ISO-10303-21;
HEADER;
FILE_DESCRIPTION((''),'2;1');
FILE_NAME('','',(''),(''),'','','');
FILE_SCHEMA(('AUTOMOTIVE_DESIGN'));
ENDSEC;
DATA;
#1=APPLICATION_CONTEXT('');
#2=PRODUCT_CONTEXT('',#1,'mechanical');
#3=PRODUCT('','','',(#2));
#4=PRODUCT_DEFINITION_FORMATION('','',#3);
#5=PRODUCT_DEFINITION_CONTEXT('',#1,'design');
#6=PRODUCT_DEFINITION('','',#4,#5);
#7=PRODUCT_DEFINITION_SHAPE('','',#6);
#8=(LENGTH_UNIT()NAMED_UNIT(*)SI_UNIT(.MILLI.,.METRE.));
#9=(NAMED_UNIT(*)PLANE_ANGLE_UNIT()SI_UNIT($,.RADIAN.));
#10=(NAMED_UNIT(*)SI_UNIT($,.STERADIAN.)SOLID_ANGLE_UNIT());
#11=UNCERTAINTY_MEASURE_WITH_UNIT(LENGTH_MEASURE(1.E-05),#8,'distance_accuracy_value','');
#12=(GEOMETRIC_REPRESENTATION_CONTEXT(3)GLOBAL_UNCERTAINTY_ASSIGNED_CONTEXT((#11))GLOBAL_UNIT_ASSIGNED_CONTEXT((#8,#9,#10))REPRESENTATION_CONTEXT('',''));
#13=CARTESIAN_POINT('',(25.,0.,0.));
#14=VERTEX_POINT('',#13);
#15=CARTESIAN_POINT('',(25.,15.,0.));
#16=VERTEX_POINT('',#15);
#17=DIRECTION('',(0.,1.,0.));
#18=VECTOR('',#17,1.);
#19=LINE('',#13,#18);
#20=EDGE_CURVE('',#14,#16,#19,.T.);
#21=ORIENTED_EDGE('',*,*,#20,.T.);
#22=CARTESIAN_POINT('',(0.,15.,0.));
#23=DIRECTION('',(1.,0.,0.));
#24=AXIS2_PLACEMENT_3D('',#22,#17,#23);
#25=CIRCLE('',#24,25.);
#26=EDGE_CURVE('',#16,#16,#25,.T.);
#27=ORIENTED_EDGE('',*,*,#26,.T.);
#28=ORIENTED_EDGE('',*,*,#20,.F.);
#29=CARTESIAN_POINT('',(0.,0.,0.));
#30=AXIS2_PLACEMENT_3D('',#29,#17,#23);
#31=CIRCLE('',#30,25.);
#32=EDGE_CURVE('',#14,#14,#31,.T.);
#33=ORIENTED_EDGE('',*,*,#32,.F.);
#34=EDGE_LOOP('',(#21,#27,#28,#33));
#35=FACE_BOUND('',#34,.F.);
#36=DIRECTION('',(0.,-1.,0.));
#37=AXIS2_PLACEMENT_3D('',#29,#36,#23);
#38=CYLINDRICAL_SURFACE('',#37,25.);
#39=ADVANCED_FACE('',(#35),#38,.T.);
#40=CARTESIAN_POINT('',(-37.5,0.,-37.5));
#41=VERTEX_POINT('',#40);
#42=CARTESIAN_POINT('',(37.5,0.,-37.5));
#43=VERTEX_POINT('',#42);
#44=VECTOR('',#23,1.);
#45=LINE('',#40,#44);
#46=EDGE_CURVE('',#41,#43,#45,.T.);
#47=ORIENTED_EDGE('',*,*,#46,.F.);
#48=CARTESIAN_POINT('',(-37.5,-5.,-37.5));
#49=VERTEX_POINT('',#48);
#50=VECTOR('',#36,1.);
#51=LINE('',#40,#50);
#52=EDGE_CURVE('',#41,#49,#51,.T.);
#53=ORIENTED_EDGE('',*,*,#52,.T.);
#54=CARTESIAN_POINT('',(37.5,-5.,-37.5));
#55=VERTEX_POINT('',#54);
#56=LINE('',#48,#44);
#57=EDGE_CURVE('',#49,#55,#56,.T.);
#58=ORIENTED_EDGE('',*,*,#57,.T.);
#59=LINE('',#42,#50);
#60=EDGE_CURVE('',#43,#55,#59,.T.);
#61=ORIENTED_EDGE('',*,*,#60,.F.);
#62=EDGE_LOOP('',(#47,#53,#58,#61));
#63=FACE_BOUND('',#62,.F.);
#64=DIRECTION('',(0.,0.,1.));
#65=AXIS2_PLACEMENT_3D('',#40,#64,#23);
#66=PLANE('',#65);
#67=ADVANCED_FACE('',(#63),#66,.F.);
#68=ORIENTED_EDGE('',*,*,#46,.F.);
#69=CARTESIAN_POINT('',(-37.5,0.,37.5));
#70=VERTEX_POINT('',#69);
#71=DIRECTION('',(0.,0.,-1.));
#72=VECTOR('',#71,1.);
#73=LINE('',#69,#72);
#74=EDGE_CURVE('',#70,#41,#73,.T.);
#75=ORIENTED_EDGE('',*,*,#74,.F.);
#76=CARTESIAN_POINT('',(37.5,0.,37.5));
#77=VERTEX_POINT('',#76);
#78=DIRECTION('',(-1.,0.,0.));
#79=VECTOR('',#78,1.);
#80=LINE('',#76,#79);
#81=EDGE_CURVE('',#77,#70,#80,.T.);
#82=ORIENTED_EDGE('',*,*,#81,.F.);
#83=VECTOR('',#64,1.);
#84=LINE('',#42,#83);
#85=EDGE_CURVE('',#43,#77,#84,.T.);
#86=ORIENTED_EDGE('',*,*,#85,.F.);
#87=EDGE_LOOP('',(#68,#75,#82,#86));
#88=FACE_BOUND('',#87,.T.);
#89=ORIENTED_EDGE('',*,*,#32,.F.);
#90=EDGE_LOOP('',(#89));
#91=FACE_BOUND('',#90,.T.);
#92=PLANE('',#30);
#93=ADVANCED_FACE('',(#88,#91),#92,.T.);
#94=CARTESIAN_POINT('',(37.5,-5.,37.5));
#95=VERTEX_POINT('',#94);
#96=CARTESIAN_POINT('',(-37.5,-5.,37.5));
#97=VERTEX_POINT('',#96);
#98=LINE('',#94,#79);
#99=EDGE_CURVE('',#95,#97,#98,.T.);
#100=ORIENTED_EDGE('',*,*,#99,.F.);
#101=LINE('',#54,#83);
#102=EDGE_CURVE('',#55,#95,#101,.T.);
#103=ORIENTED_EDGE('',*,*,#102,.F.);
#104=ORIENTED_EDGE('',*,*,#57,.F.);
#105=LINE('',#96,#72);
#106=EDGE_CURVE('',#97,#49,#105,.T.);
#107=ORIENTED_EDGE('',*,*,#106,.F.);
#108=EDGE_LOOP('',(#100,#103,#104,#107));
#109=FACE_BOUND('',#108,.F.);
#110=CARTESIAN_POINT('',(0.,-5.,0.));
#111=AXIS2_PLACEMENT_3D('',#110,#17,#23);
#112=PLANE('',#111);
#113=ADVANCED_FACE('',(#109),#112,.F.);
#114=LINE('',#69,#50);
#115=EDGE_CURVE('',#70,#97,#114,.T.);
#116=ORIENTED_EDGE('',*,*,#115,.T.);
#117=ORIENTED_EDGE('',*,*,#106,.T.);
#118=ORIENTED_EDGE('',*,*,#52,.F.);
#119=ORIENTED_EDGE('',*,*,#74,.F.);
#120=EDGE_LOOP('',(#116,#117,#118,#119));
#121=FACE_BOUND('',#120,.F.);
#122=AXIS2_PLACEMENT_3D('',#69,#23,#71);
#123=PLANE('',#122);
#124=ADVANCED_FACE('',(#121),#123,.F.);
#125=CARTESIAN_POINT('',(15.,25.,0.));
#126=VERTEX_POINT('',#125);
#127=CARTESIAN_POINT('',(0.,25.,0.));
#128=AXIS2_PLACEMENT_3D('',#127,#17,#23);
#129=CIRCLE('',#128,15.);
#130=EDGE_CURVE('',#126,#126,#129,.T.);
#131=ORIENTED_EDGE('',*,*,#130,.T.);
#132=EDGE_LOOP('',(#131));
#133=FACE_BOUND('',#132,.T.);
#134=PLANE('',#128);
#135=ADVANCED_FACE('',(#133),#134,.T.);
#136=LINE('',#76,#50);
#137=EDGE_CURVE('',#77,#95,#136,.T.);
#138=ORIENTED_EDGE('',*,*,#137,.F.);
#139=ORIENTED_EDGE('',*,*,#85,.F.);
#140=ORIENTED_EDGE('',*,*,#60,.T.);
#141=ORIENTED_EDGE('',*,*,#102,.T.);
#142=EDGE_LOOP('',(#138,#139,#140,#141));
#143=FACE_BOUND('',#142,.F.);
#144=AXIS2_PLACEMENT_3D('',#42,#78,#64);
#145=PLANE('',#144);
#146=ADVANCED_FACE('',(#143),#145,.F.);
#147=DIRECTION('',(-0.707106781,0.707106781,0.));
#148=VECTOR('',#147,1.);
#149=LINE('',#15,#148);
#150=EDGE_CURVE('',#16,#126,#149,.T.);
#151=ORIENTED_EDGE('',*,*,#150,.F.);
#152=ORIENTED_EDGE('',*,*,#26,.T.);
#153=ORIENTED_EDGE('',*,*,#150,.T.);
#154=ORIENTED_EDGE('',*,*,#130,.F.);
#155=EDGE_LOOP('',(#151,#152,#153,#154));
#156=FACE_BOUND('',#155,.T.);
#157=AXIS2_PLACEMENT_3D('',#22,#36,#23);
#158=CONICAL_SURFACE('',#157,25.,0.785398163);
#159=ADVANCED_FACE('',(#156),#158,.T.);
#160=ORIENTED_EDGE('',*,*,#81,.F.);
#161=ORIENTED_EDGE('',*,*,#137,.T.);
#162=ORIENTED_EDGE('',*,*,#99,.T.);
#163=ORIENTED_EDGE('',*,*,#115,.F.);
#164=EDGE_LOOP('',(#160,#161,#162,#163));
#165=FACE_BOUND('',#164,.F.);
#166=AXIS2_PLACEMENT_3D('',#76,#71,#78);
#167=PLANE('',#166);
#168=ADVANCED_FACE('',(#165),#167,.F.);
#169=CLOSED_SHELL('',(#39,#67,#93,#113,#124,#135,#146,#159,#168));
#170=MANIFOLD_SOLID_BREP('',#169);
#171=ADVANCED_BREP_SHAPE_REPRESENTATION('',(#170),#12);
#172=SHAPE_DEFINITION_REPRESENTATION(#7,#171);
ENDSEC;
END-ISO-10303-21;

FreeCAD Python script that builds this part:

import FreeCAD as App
import Part
import Sketcher


def edges_at(feature, points):
    """Names of the edges that pass closest to the given points."""
    edges = feature.Shape.Edges
    near = lambda p: min(range(len(edges)), key=lambda i: edges[i].distToShape(Part.Vertex(*p))[0])
    return sorted({f"Edge{near(p) + 1}" for p in points})


def add_polygon(sketch, points):
    """Adds a closed chain of lines whose ends are joined by coincident constraints."""
    first, n = sketch.GeometryCount, len(points)
    for a, b in zip(points, points[1:] + points[:1]):
        sketch.addGeometry(Part.LineSegment(App.Vector(*a, 0), App.Vector(*b, 0)), False)
    for i in range(n):
        sketch.addConstraint(Sketcher.Constraint("Coincident", first + i, 2, first + (i + 1) % n, 1))

doc = App.newDocument("Part")
body = doc.addObject("PartDesign::Body", "Body")

sketch1 = body.newObject("Sketcher::SketchObject", "Sketch")
sketch1.AttachmentSupport = (doc.getObject("XZ_Plane"), [""])
sketch1.MapMode = "FlatFace"
sketch1.addGeometry(Part.Circle(App.Vector(0, 0, 0), App.Vector(0, 0, 1), 25), False)
sketch1.addConstraint([
    Sketcher.Constraint("Coincident", 0, 3, -1, 1),
    Sketcher.Constraint("Diameter", 0, 50.0),
])
pad1 = body.newObject("PartDesign::Pad", "Pad")
pad1.Profile = sketch1
pad1.Length = 25
pad1.Reversed = True

sketch2 = body.newObject("Sketcher::SketchObject", "Sketch001")
sketch2.AttachmentSupport = (doc.getObject("XZ_Plane"), [""])
sketch2.MapMode = "FlatFace"
add_polygon(sketch2, [(-37.5, 37.5), (37.5, 37.5), (37.5, -37.5), (-37.5, -37.5)])
sketch2.addConstraint([
    Sketcher.Constraint("Horizontal", 0),
    Sketcher.Constraint("Vertical", 1),
    Sketcher.Constraint("Horizontal", 2),
    Sketcher.Constraint("Vertical", 3),
    Sketcher.Constraint("Symmetric", 0, 2, 2, 2, -1, 1),
    Sketcher.Constraint("Equal", 2, 1),
    Sketcher.Constraint("DistanceX", 0, 1, 0, 2, 75.0),
])
pad2 = body.newObject("PartDesign::Pad", "Pad001")
pad2.Profile = sketch2
pad2.Length = 5
doc.recompute()

chamfer = body.newObject("PartDesign::Chamfer", "Chamfer")
chamfer.Base = (pad2, edges_at(pad2, [(-23.308, 25, 9.04)]))
chamfer.Size = 10

doc.recompute()
